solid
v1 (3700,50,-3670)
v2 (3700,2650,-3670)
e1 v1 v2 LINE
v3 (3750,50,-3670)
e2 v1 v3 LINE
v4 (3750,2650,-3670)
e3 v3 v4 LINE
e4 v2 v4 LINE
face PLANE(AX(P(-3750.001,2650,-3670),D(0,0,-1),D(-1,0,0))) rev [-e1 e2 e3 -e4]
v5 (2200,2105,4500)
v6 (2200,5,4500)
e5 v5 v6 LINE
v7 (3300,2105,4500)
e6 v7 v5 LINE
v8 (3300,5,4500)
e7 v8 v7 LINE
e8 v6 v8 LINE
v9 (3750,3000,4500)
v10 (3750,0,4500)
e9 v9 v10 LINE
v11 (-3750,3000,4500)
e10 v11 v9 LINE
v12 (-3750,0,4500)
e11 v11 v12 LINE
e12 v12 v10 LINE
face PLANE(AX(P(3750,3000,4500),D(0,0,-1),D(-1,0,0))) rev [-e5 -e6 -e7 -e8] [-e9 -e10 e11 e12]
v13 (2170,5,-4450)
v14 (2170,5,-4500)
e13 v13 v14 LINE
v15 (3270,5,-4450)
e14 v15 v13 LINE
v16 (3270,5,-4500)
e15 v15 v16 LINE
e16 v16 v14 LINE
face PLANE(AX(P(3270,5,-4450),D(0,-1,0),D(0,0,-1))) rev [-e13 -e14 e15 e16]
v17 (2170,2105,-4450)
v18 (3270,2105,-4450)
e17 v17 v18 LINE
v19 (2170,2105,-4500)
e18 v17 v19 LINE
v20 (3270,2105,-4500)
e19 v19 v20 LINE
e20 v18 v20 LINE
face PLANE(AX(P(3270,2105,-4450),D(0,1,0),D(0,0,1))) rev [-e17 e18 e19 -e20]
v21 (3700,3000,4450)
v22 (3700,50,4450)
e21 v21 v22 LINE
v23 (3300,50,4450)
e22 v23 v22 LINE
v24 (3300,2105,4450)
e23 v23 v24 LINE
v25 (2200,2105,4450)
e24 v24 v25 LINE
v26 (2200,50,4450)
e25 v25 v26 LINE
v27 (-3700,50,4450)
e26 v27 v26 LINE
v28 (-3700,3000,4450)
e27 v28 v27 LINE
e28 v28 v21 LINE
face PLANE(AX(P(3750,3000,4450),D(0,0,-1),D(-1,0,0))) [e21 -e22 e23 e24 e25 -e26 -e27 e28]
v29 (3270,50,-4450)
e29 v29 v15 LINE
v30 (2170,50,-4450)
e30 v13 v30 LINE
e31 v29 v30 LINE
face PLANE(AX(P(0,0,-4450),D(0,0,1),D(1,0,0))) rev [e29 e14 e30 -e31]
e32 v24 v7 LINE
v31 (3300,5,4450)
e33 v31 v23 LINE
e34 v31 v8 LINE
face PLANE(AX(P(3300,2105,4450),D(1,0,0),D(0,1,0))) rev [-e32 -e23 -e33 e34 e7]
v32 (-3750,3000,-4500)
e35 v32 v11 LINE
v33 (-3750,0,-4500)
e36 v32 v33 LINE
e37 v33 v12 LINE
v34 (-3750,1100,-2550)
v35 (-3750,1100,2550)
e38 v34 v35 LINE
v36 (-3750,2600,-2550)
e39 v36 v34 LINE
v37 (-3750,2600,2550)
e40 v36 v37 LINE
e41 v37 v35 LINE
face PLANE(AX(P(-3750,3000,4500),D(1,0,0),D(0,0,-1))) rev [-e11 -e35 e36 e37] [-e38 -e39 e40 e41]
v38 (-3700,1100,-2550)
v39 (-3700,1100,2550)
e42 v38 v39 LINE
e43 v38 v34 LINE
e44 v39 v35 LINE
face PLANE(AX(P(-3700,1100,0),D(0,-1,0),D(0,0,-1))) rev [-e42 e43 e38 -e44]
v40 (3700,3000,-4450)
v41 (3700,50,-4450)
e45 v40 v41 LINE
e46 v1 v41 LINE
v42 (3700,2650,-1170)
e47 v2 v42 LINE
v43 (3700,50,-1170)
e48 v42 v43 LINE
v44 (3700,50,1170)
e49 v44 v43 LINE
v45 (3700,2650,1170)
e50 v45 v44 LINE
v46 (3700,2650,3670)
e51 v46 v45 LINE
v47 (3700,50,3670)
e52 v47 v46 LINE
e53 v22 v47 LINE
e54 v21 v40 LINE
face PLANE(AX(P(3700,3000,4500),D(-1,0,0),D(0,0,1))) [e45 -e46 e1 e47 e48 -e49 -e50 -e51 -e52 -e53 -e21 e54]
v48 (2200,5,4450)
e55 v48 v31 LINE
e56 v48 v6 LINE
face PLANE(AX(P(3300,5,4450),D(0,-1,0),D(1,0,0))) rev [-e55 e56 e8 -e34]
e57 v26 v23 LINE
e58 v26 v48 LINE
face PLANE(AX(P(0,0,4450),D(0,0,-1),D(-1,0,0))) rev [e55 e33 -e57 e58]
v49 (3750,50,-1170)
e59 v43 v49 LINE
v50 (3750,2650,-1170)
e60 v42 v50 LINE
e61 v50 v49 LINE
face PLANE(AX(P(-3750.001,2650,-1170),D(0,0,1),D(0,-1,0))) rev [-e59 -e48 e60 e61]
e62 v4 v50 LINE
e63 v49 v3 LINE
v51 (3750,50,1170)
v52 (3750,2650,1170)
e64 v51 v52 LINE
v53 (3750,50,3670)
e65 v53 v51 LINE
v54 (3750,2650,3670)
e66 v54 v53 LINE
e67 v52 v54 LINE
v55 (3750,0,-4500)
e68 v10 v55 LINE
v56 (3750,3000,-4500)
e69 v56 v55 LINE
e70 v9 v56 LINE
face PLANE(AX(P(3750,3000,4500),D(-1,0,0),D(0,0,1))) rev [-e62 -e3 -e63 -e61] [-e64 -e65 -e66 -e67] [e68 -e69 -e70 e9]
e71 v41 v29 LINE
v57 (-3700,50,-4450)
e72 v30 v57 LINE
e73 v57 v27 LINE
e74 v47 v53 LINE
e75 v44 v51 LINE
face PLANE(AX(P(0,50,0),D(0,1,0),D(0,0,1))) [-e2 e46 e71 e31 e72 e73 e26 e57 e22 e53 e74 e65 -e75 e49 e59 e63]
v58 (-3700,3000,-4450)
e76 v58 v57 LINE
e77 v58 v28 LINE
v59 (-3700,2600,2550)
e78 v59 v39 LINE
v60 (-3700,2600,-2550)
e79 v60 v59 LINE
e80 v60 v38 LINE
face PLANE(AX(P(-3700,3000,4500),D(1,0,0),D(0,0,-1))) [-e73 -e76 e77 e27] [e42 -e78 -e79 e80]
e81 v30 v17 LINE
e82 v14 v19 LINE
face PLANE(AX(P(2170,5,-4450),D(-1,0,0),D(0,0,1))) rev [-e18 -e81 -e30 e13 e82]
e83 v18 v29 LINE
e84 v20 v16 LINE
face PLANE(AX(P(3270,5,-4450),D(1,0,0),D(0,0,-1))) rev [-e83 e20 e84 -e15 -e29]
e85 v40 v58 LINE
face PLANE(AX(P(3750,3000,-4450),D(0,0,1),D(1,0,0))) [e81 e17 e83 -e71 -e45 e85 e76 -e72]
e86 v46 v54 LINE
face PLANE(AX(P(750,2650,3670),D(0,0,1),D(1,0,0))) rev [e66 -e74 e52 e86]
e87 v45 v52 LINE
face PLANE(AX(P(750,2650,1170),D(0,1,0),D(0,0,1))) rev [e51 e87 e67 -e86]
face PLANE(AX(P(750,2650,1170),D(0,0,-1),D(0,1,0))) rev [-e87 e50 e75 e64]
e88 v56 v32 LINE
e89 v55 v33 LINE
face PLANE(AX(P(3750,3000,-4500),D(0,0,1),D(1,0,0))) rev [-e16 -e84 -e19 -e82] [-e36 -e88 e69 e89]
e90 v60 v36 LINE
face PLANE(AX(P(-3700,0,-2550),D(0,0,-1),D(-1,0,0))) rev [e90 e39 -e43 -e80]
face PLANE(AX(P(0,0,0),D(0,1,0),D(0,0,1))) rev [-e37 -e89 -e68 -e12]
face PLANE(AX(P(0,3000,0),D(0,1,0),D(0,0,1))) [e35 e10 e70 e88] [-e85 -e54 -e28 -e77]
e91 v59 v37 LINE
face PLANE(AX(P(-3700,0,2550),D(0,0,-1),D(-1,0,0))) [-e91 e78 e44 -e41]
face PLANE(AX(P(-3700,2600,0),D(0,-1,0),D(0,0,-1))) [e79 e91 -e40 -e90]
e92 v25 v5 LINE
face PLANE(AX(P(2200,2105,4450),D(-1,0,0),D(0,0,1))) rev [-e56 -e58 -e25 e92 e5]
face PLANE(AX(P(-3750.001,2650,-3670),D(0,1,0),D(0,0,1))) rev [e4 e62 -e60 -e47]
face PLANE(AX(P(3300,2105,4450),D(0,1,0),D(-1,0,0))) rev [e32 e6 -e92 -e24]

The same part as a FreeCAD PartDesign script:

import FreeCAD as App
import Part
import Sketcher
from FreeCAD import Vector


def faces_at(feature, points):
    """Names of the faces that lie closest to the given points."""
    faces = feature.Shape.Faces
    near = lambda p: min(range(len(faces)), key=lambda i: faces[i].distToShape(Part.Vertex(*p))[0])
    return sorted({f"Face{near(p) + 1}" for p in points})


def add_polygon(sketch, points):
    """Adds a closed chain of lines whose ends are joined by coincident constraints."""
    first, n = sketch.GeometryCount, len(points)
    for a, b in zip(points, points[1:] + points[:1]):
        sketch.addGeometry(Part.LineSegment(App.Vector(*a, 0), App.Vector(*b, 0)), False)
    for i in range(n):
        sketch.addConstraint(Sketcher.Constraint("Coincident", first + i, 2, first + (i + 1) % n, 1))

doc = App.newDocument("Part")
body = doc.addObject("PartDesign::Body", "Body")

# Sketch on XZ plane
sketch1 = doc.addObject("Sketcher::SketchObject", "Sketch")
body.addObject(sketch1)
sketch1.AttachmentSupport = (doc.XZ_Plane, [""])
sketch1.MapMode = "FlatFace"
add_polygon(sketch1, [(-3750, -4500), (-3750, 4500), (3750, 4500), (3750, -4500)])  # lines 0-3
sketch1.addConstraint([
    Sketcher.Constraint("Vertical", 0),
    Sketcher.Constraint("Horizontal", 1),
    Sketcher.Constraint("Vertical", 2),
    Sketcher.Constraint("Horizontal", 3),
    Sketcher.Constraint("Symmetric", 0, 2, 2, 2, -1, 1),
    Sketcher.Constraint("DistanceX", 1, 1, 1, 2, 7500.0),
    Sketcher.Constraint("DistanceY", 0, 1, 0, 2, 9000.0),
])
pad1 = doc.addObject("PartDesign::Pad", "Pad")
body.addObject(pad1)
pad1.Profile = sketch1
pad1.Length = 3000
pad1.Reversed = True
doc.recompute()

thickness = doc.addObject("PartDesign::Thickness", "Thickness")
body.addObject(thickness)
thickness.Base = (pad1, faces_at(pad1, [(0, 3000, 0)]))
thickness.Value = 50
thickness.Reversed = True
thickness.Join = "Intersection"

# Sketch on YZ plane
sketch2 = doc.addObject("Sketcher::SketchObject", "Sketch001")
body.addObject(sketch2)
sketch2.AttachmentSupport = (doc.YZ_Plane, [""])
sketch2.MapMode = "FlatFace"
sketch2.AttachmentOffset = App.Placement(Vector(0, 0, 3750), App.Rotation())
add_polygon(sketch2, [(2650, -1170), (50, -1170), (50, -3670), (2650, -3670)])  # lines 0-3
sketch2.addConstraint([
    Sketcher.Constraint("Horizontal", 0),
    Sketcher.Constraint("Vertical", 1),
    Sketcher.Constraint("Horizontal", 2),
    Sketcher.Constraint("Vertical", 3),
    Sketcher.Constraint("DistanceX", 0, 2, 0, 1, 2600.0),
    Sketcher.Constraint("DistanceY", 1, 2, 1, 1, 2500.0),
    Sketcher.Constraint("DistanceX", -1, 1, 0, 2, 50.0),
    Sketcher.Constraint("DistanceY", 0, 2, -1, 1, 1170.0),
])
pocket1 = doc.addObject("PartDesign::Pocket", "Pocket")
body.addObject(pocket1)
pocket1.Profile = sketch2
pocket1.Type = "UpToFirst"

# Sketch on YZ plane
sketch3 = doc.addObject("Sketcher::SketchObject", "Sketch002")
body.addObject(sketch3)
sketch3.AttachmentSupport = (doc.YZ_Plane, [""])
sketch3.MapMode = "FlatFace"
sketch3.AttachmentOffset = App.Placement(Vector(0, 0, 3750), App.Rotation())
add_polygon(sketch3, [(2650, 3670), (50, 3670), (50, 1170), (2650, 1170)])  # lines 0-3
sketch3.addConstraint([
    Sketcher.Constraint("Horizontal", 0),
    Sketcher.Constraint("Vertical", 1),
    Sketcher.Constraint("Horizontal", 2),
    Sketcher.Constraint("Vertical", 3),
    Sketcher.Constraint("DistanceX", 0, 2, 0, 1, 2600.0),
    Sketcher.Constraint("DistanceY", 1, 2, 1, 1, 2500.0),
    Sketcher.Constraint("DistanceX", -1, 1, 0, 2, 50.0),
    Sketcher.Constraint("DistanceY", -1, 1, 0, 2, 3670.0),
])
pocket2 = doc.addObject("PartDesign::Pocket", "Pocket001")
body.addObject(pocket2)
pocket2.Profile = sketch3
pocket2.Length = 3000

# Sketch on XY plane
sketch4 = doc.addObject("Sketcher::SketchObject", "Sketch003")
body.addObject(sketch4)
sketch4.AttachmentSupport = (doc.XY_Plane, [""])
sketch4.MapMode = "FlatFace"
sketch4.AttachmentOffset = App.Placement(Vector(0, 0, 4500), App.Rotation())
add_polygon(sketch4, [(2200, 2105), (2200, 5), (3300, 5), (3300, 2105)])  # lines 0-3
sketch4.addConstraint([
    Sketcher.Constraint("Vertical", 0),
    Sketcher.Constraint("Horizontal", 1),
    Sketcher.Constraint("Vertical", 2),
    Sketcher.Constraint("Horizontal", 3),
    Sketcher.Constraint("DistanceX", 1, 1, 1, 2, 1100.0),
    Sketcher.Constraint("DistanceY", 0, 2, 0, 1, 2100.0),
    Sketcher.Constraint("DistanceX", -1, 1, 0, 2, 2200.0),
    Sketcher.Constraint("DistanceY", -1, 1, 0, 2, 5.0),
])
pocket3 = doc.addObject("PartDesign::Pocket", "Pocket002")
body.addObject(pocket3)
pocket3.Profile = sketch4
pocket3.Length = 50

# Sketch on XY plane
sketch5 = doc.addObject("Sketcher::SketchObject", "Sketch004")
body.addObject(sketch5)
sketch5.AttachmentSupport = (doc.XY_Plane, [""])
sketch5.MapMode = "FlatFace"
sketch5.AttachmentOffset = App.Placement(Vector(0, 0, -4500), App.Rotation())
add_polygon(sketch5, [(3270, 2105), (3270, 5), (2170, 5), (2170, 2105)])  # lines 0-3
sketch5.addConstraint([
    Sketcher.Constraint("Vertical", 0),
    Sketcher.Constraint("Horizontal", 1),
    Sketcher.Constraint("Vertical", 2),
    Sketcher.Constraint("Horizontal", 3),
    Sketcher.Constraint("DistanceX", 1, 2, 1, 1, 1100.0),
    Sketcher.Constraint("DistanceY", 0, 2, 0, 1, 2100.0),
    Sketcher.Constraint("DistanceX", -1, 1, 0, 2, 3270.0),
    Sketcher.Constraint("DistanceY", -1, 1, 0, 2, 5.0),
])
pocket4 = doc.addObject("PartDesign::Pocket", "Pocket003")
body.addObject(pocket4)
pocket4.Profile = sketch5
pocket4.Length = 50
pocket4.Reversed = True

# Sketch on YZ plane
sketch6 = doc.addObject("Sketcher::SketchObject", "Sketch005")
body.addObject(sketch6)
sketch6.AttachmentSupport = (doc.YZ_Plane, [""])
sketch6.MapMode = "FlatFace"
sketch6.AttachmentOffset = App.Placement(Vector(0, 0, -3750), App.Rotation())
add_polygon(sketch6, [(2600, -2550), (1100, -2550), (1100, 2550), (2600, 2550)])  # lines 0-3
sketch6.addConstraint([
    Sketcher.Constraint("Horizontal", 0),
    Sketcher.Constraint("Vertical", 1),
    Sketcher.Constraint("Horizontal", 2),
    Sketcher.Constraint("Vertical", 3),
    Sketcher.Constraint("DistanceX", 0, 2, 0, 1, 1500.0),
    Sketcher.Constraint("DistanceY", 1, 1, 1, 2, 5100.0),
    Sketcher.Constraint("DistanceX", -1, 1, 0, 2, 1100.0),
    Sketcher.Constraint("DistanceY", 0, 2, -1, 1, 2550.0),
])
pocket5 = doc.addObject("PartDesign::Pocket", "Pocket004")
body.addObject(pocket5)
pocket5.Profile = sketch6
pocket5.Length = 50
pocket5.Reversed = True

doc.recompute()
